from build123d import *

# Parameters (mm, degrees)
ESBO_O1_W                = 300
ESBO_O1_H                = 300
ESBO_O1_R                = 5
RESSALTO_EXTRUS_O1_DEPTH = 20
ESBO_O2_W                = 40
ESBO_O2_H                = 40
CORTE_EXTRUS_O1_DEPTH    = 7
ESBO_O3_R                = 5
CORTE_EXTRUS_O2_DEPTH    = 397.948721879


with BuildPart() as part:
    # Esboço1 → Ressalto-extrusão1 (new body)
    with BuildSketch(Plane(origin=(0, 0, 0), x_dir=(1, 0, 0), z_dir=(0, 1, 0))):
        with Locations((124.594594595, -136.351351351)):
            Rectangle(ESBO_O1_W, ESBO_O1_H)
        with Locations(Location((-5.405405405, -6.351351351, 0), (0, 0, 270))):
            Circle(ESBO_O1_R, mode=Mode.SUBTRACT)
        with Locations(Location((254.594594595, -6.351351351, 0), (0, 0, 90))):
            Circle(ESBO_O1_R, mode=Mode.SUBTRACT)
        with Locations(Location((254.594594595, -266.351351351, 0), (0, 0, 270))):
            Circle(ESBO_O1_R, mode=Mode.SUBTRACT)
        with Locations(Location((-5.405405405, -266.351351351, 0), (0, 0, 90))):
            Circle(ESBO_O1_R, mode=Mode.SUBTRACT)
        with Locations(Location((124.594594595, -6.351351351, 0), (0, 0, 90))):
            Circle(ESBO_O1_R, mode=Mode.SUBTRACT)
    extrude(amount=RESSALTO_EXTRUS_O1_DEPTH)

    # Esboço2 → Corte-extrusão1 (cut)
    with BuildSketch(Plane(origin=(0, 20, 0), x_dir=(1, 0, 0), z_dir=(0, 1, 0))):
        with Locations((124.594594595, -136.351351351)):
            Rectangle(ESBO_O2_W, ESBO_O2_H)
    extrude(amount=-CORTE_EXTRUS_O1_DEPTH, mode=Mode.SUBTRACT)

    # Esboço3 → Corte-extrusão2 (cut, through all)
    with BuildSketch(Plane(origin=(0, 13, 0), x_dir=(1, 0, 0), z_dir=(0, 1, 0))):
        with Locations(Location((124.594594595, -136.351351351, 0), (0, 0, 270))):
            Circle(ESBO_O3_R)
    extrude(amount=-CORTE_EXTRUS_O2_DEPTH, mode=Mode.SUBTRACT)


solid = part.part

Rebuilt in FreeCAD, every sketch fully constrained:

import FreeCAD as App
import Part
import Sketcher

doc = App.newDocument("Part")
params = doc.addObject("Spreadsheet::Sheet", "Params")
for row, (alias, value) in enumerate([
    ("sketch1_diameter", "10 mm"),
    ("sketch1_width", "300 mm"),
    ("pad1_length", "20 mm"),
    ("sketch2_width", "40 mm"),
    ("pocket1_length", "7 mm"),
    ("sketch3_diameter", "10 mm"),
], start=1):
    params.set(f"A{row}", alias)
    params.set(f"B{row}", "=" + value)
    params.setAlias(f"B{row}", alias)

body = doc.addObject("PartDesign::Body", "Body")

# Sketch on XZ plane
sketch1 = doc.addObject("Sketcher::SketchObject", "Sketch")
body.addObject(sketch1)
sketch1.AttachmentSupport = (doc.XZ_Plane, [""])
sketch1.MapMode = "FlatFace"
sketch1.addGeometry(Part.LineSegment(App.Vector(-25, -14, 0), App.Vector(-25, 286, 0)), False)
sketch1.addGeometry(Part.LineSegment(App.Vector(-25, 286, 0), App.Vector(275, 286, 0)), False)
sketch1.addGeometry(Part.LineSegment(App.Vector(275, 286, 0), App.Vector(275, -14, 0)), False)
sketch1.addGeometry(Part.LineSegment(App.Vector(275, -14, 0), App.Vector(-25, -14, 0)), False)
sketch1.addGeometry(Part.Circle(App.Vector(-5, 266, 0), App.Vector(0, 0, 1), 5), False)
sketch1.addGeometry(Part.Circle(App.Vector(255, 266, 0), App.Vector(0, 0, 1), 5), False)
sketch1.addGeometry(Part.Circle(App.Vector(-5, 6, 0), App.Vector(0, 0, 1), 5), False)
sketch1.addGeometry(Part.Circle(App.Vector(125, 6, 0), App.Vector(0, 0, 1), 5), False)
sketch1.addGeometry(Part.Circle(App.Vector(255, 6, 0), App.Vector(0, 0, 1), 5), False)
sketch1.addConstraint(Sketcher.Constraint("Coincident", 0, 2, 1, 1))
sketch1.addConstraint(Sketcher.Constraint("Coincident", 1, 2, 2, 1))
sketch1.addConstraint(Sketcher.Constraint("Coincident", 2, 2, 3, 1))
sketch1.addConstraint(Sketcher.Constraint("Coincident", 3, 2, 0, 1))
sketch1.addConstraint(Sketcher.Constraint("Vertical", 0))
sketch1.addConstraint(Sketcher.Constraint("Horizontal", 1))
sketch1.addConstraint(Sketcher.Constraint("Vertical", 2))
sketch1.addConstraint(Sketcher.Constraint("Horizontal", 3))
sketch1.addConstraint(Sketcher.Constraint("Equal", 4, 5))
sketch1.addConstraint(Sketcher.Constraint("Equal", 5, 6))
sketch1.addConstraint(Sketcher.Constraint("Equal", 6, 7))
sketch1.addConstraint(Sketcher.Constraint("Equal", 7, 8))
sketch1.addConstraint(Sketcher.Constraint("Horizontal", 4, 3, 5, 3))
sketch1.addConstraint(Sketcher.Constraint("Horizontal", 6, 3, 7, 3))
sketch1.addConstraint(Sketcher.Constraint("Horizontal", 7, 3, 8, 3))
sketch1.addConstraint(Sketcher.Constraint("Vertical", 4, 3, 6, 3))
sketch1.addConstraint(Sketcher.Constraint("Vertical", 5, 3, 8, 3))
sketch1.addConstraint(Sketcher.Constraint("Equal", 3, 0))
sketch1.addConstraint(Sketcher.Constraint("Diameter", 4, 10.0))
sketch1.addConstraint(Sketcher.Constraint("DistanceX", 1, 1, 1, 2, 300.0))
sketch1.addConstraint(Sketcher.Constraint("DistanceX", 4, 3, 5, 3, 260.0))
sketch1.addConstraint(Sketcher.Constraint("DistanceY", 6, 3, 4, 3, 260.0))
sketch1.addConstraint(Sketcher.Constraint("DistanceX", 6, 3, 7, 3, 130.0))
sketch1.addConstraint(Sketcher.Constraint("DistanceX", 0, 2, 4, 3, 20.0))
sketch1.addConstraint(Sketcher.Constraint("DistanceY", 4, 3, 0, 2, 20.0))
sketch1.addConstraint(Sketcher.Constraint("DistanceY", -1, 1, 4, 3, 266.351351))
sketch1.addConstraint(Sketcher.Constraint("DistanceX", 4, 3, -1, 1, 5.405405))
sketch1.setExpression("Constraints[18]", "Params.sketch1_diameter")
sketch1.setExpression("Constraints[19]", "Params.sketch1_width")
pad1 = doc.addObject("PartDesign::Pad", "Pad")
body.addObject(pad1)
pad1.Profile = sketch1
pad1.setExpression("Length", "Params.pad1_length")
pad1.Reversed = True

# Sketch on XZ plane
sketch2 = doc.addObject("Sketcher::SketchObject", "Sketch001")
body.addObject(sketch2)
sketch2.AttachmentSupport = (doc.XZ_Plane, [""])
sketch2.MapMode = "FlatFace"
sketch2.AttachmentOffset = App.Placement(App.Vector(0, 0, -20), App.Rotation())
sketch2.addGeometry(Part.LineSegment(App.Vector(105, 116, 0), App.Vector(105, 156, 0)), False)
sketch2.addGeometry(Part.LineSegment(App.Vector(105, 156, 0), App.Vector(145, 156, 0)), False)
sketch2.addGeometry(Part.LineSegment(App.Vector(145, 156, 0), App.Vector(145, 116, 0)), False)
sketch2.addGeometry(Part.LineSegment(App.Vector(145, 116, 0), App.Vector(105, 116, 0)), False)
sketch2.addConstraint(Sketcher.Constraint("Coincident", 0, 2, 1, 1))
sketch2.addConstraint(Sketcher.Constraint("Coincident", 1, 2, 2, 1))
sketch2.addConstraint(Sketcher.Constraint("Coincident", 2, 2, 3, 1))
sketch2.addConstraint(Sketcher.Constraint("Coincident", 3, 2, 0, 1))
sketch2.addConstraint(Sketcher.Constraint("Vertical", 0))
sketch2.addConstraint(Sketcher.Constraint("Horizontal", 1))
sketch2.addConstraint(Sketcher.Constraint("Vertical", 2))
sketch2.addConstraint(Sketcher.Constraint("Horizontal", 3))
sketch2.addConstraint(Sketcher.Constraint("Equal", 3, 0))
sketch2.addConstraint(Sketcher.Constraint("DistanceX", 1, 1, 1, 2, 40.0))
sketch2.addConstraint(Sketcher.Constraint("DistanceY", -1, 1, 0, 2, 156.351351))
sketch2.addConstraint(Sketcher.Constraint("DistanceX", -1, 1, 0, 2, 104.594595))
sketch2.setExpression("Constraints[9]", "Params.sketch2_width")
pocket1 = doc.addObject("PartDesign::Pocket", "Pocket")
body.addObject(pocket1)
pocket1.Profile = sketch2
pocket1.setExpression("Length", "Params.pocket1_length")
pocket1.Reversed = True

# Sketch on XZ plane
sketch3 = doc.addObject("Sketcher::SketchObject", "Sketch002")
body.addObject(sketch3)
sketch3.AttachmentSupport = (doc.XZ_Plane, [""])
sketch3.MapMode = "FlatFace"
sketch3.AttachmentOffset = App.Placement(App.Vector(0, 0, -13), App.Rotation())
sketch3.addGeometry(Part.Circle(App.Vector(125, 136, 0), App.Vector(0, 0, 1), 5), False)
sketch3.addConstraint(Sketcher.Constraint("Diameter", 0, 10.0))
sketch3.addConstraint(Sketcher.Constraint("DistanceY", -1, 1, 0, 3, 136.351351))
sketch3.addConstraint(Sketcher.Constraint("DistanceX", -1, 1, 0, 3, 124.594595))
sketch3.setExpression("Constraints[0]", "Params.sketch3_diameter")
pocket2 = doc.addObject("PartDesign::Pocket", "Pocket001")
body.addObject(pocket2)
pocket2.Profile = sketch3
pocket2.Type = "ThroughAll"
pocket2.Reversed = True

doc.recompute()
